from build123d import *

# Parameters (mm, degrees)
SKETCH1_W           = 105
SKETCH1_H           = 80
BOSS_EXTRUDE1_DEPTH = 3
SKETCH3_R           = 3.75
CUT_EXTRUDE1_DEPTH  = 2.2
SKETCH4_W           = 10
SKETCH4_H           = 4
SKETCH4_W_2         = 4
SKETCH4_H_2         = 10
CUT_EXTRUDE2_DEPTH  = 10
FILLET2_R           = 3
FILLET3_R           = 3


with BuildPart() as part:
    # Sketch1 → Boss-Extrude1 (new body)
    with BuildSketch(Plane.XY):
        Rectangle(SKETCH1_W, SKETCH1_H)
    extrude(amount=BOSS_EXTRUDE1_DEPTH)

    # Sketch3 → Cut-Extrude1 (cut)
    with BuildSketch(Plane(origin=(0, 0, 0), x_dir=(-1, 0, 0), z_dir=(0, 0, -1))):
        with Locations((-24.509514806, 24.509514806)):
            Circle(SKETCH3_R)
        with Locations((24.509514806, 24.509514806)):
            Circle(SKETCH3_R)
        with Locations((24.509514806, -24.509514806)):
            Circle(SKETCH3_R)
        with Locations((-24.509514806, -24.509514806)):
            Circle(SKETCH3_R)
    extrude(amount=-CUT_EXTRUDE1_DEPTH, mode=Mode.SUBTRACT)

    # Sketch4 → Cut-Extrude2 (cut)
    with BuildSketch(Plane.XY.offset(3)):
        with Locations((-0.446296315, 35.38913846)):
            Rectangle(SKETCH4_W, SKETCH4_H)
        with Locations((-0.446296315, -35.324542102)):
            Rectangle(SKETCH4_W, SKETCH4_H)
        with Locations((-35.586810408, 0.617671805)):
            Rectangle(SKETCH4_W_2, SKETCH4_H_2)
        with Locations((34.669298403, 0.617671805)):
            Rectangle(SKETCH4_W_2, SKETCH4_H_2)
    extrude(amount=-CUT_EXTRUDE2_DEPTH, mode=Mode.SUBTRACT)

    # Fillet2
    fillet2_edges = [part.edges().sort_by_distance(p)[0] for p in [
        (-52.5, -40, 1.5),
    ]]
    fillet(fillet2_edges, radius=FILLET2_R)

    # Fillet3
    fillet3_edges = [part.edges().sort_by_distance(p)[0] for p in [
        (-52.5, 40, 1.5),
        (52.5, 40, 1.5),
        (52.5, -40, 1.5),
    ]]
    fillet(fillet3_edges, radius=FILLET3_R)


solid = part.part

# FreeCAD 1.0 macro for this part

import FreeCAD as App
import Part
import Sketcher
from FreeCAD import Vector


def edges_at(feature, points):
    """Names of the edges that pass closest to the given points."""
    edges = feature.Shape.Edges
    near = lambda p: min(range(len(edges)), key=lambda i: edges[i].distToShape(Part.Vertex(*p))[0])
    return sorted({f"Edge{near(p) + 1}" for p in points})

doc = App.newDocument("Part")
body = doc.addObject("PartDesign::Body", "Body")

# Sketch on XY plane
sketch1 = doc.addObject("Sketcher::SketchObject", "Sketch")
body.addObject(sketch1)
sketch1.AttachmentSupport = (doc.XY_Plane, [""])
sketch1.MapMode = "FlatFace"
sketch1.addGeometry([
    Part.LineSegment(Vector(-52.5, 40, 0), Vector(-52.5, -40, 0)),
    Part.LineSegment(Vector(-52.5, -40, 0), Vector(52.5, -40, 0)),
    Part.LineSegment(Vector(52.5, -40, 0), Vector(52.5, 40, 0)),
    Part.LineSegment(Vector(52.5, 40, 0), Vector(-52.5, 40, 0)),
], False)
sketch1.addConstraint([
    Sketcher.Constraint("Coincident", 0, 2, 1, 1),
    Sketcher.Constraint("Coincident", 1, 2, 2, 1),
    Sketcher.Constraint("Coincident", 2, 2, 3, 1),
    Sketcher.Constraint("Coincident", 3, 2, 0, 1),
    Sketcher.Constraint("Vertical", 0),
    Sketcher.Constraint("Horizontal", 1),
    Sketcher.Constraint("Vertical", 2),
    Sketcher.Constraint("Horizontal", 3),
    Sketcher.Constraint("Symmetric", 0, 2, 2, 2, -1, 1),
    Sketcher.Constraint("DistanceX", 1, 1, 1, 2, 105.0),
    Sketcher.Constraint("DistanceY", 0, 2, 0, 1, 80.0),
])
pad1 = doc.addObject("PartDesign::Pad", "Pad")
body.addObject(pad1)
pad1.Profile = sketch1
pad1.Length = 3

# Sketch on XY plane
sketch2 = doc.addObject("Sketcher::SketchObject", "Sketch001")
body.addObject(sketch2)
sketch2.AttachmentSupport = (doc.XY_Plane, [""])
sketch2.MapMode = "FlatFace"
sketch2.addGeometry([
    Part.Circle(Vector(24.509515, 24.509515, 0), Vector(0, 0, 1), 3.75),
    Part.Circle(Vector(-24.509515, 24.509515, 0), Vector(0, 0, 1), 3.75),
    Part.Circle(Vector(-24.509515, -24.509515, 0), Vector(0, 0, 1), 3.75),
    Part.Circle(Vector(24.509515, -24.509515, 0), Vector(0, 0, 1), 3.75),
], False)
sketch2.addConstraint([
    Sketcher.Constraint("Equal", 0, 1),
    Sketcher.Constraint("Equal", 1, 2),
    Sketcher.Constraint("Equal", 2, 3),
    Sketcher.Constraint("Symmetric", 0, 3, 2, 3, -1, 1),
    Sketcher.Constraint("Symmetric", 1, 3, 3, 3, -1, 1),
    Sketcher.Constraint("Symmetric", 0, 3, 1, 3, -2),
    Sketcher.Constraint("Diameter", 0, 7.5),
    Sketcher.Constraint("DistanceX", 1, 3, 0, 3, 49.01903),
    Sketcher.Constraint("DistanceY", 2, 3, 1, 3, 49.01903),
])
pocket1 = doc.addObject("PartDesign::Pocket", "Pocket")
body.addObject(pocket1)
pocket1.Profile = sketch2
pocket1.Length = 2.2
pocket1.Reversed = True

# Sketch on XY plane
sketch3 = doc.addObject("Sketcher::SketchObject", "Sketch002")
body.addObject(sketch3)
sketch3.AttachmentSupport = (doc.XY_Plane, [""])
sketch3.MapMode = "FlatFace"
sketch3.AttachmentOffset = App.Placement(Vector(0, 0, 3), App.Rotation())
sketch3.addGeometry([
    Part.LineSegment(Vector(-5.446296, 37.389138, 0), Vector(-5.446296, 33.389138, 0)),  # 0
    Part.LineSegment(Vector(-5.446296, 33.389138, 0), Vector(4.553704, 33.389138, 0)),  # 1
    Part.LineSegment(Vector(4.553704, 33.389138, 0), Vector(4.553704, 37.389138, 0)),  # 2
    Part.LineSegment(Vector(4.553704, 37.389138, 0), Vector(-5.446296, 37.389138, 0)),  # 3
    Part.LineSegment(Vector(-5.446296, -33.324542, 0), Vector(-5.446296, -37.324542, 0)),  # 4
    Part.LineSegment(Vector(-5.446296, -37.324542, 0), Vector(4.553704, -37.324542, 0)),  # 5
    Part.LineSegment(Vector(4.553704, -37.324542, 0), Vector(4.553704, -33.324542, 0)),  # 6
    Part.LineSegment(Vector(4.553704, -33.324542, 0), Vector(-5.446296, -33.324542, 0)),  # 7
    Part.LineSegment(Vector(-37.58681, 5.617672, 0), Vector(-37.58681, -4.382328, 0)),  # 8
    Part.LineSegment(Vector(-37.58681, -4.382328, 0), Vector(-33.58681, -4.382328, 0)),  # 9
    Part.LineSegment(Vector(-33.58681, -4.382328, 0), Vector(-33.58681, 5.617672, 0)),  # 10
    Part.LineSegment(Vector(-33.58681, 5.617672, 0), Vector(-37.58681, 5.617672, 0)),  # 11
    Part.LineSegment(Vector(32.669298, 5.617672, 0), Vector(32.669298, -4.382328, 0)),  # 12
    Part.LineSegment(Vector(32.669298, -4.382328, 0), Vector(36.669298, -4.382328, 0)),  # 13
    Part.LineSegment(Vector(36.669298, -4.382328, 0), Vector(36.669298, 5.617672, 0)),  # 14
    Part.LineSegment(Vector(36.669298, 5.617672, 0), Vector(32.669298, 5.617672, 0)),  # 15
], False)
sketch3.addConstraint([
    Sketcher.Constraint("Coincident", 0, 2, 1, 1),
    Sketcher.Constraint("Coincident", 1, 2, 2, 1),
    Sketcher.Constraint("Coincident", 2, 2, 3, 1),
    Sketcher.Constraint("Coincident", 3, 2, 0, 1),
    Sketcher.Constraint("Coincident", 4, 2, 5, 1),
    Sketcher.Constraint("Coincident", 5, 2, 6, 1),
    Sketcher.Constraint("Coincident", 6, 2, 7, 1),
    Sketcher.Constraint("Coincident", 7, 2, 4, 1),
    Sketcher.Constraint("Coincident", 8, 2, 9, 1),
    Sketcher.Constraint("Coincident", 9, 2, 10, 1),
    Sketcher.Constraint("Coincident", 10, 2, 11, 1),
    Sketcher.Constraint("Coincident", 11, 2, 8, 1),
    Sketcher.Constraint("Coincident", 12, 2, 13, 1),
    Sketcher.Constraint("Coincident", 13, 2, 14, 1),
    Sketcher.Constraint("Coincident", 14, 2, 15, 1),
    Sketcher.Constraint("Coincident", 15, 2, 12, 1),
    Sketcher.Constraint("Vertical", 0),
    Sketcher.Constraint("Horizontal", 1),
    Sketcher.Constraint("Vertical", 2),
    Sketcher.Constraint("Horizontal", 3),
    Sketcher.Constraint("Vertical", 4),
    Sketcher.Constraint("Horizontal", 5),
    Sketcher.Constraint("Vertical", 6),
    Sketcher.Constraint("Horizontal", 7),
    Sketcher.Constraint("Vertical", 8),
    Sketcher.Constraint("Horizontal", 9),
    Sketcher.Constraint("Vertical", 10),
    Sketcher.Constraint("Horizontal", 11),
    Sketcher.Constraint("Vertical", 12),
    Sketcher.Constraint("Horizontal", 13),
    Sketcher.Constraint("Vertical", 14),
    Sketcher.Constraint("Horizontal", 15),
    Sketcher.Constraint("Horizontal", 9, 2, 12, 2),
    Sketcher.Constraint("Horizontal", 11, 2, 14, 2),
    Sketcher.Constraint("Vertical", 3, 2, 4, 2),
    Sketcher.Constraint("Vertical", 2, 2, 5, 2),
    Sketcher.Constraint("Equal", 11, 13),
    Sketcher.Constraint("Equal", 15, 0),
    Sketcher.Constraint("Equal", 2, 4),
    Sketcher.Constraint("Equal", 7, 8),
    Sketcher.Constraint("DistanceX", 1, 1, 1, 2, 10.0),
    Sketcher.Constraint("DistanceX", 9, 1, 9, 2, 4.0),
    Sketcher.Constraint("DistanceX", -1, 1, 12, 2, 32.669298),
    Sketcher.Constraint("DistanceY", -1, 1, 0, 2, 33.389138),
    Sketcher.Constraint("DistanceX", 8, 2, -1, 1, 37.58681),
    Sketcher.Constraint("DistanceY", 8, 2, -1, 1, 4.382328),
    Sketcher.Constraint("DistanceY", 4, 2, 0, 2, 70.713681),
    Sketcher.Constraint("DistanceX", 0, 2, -1, 1, 5.446296),
])
pocket2 = doc.addObject("PartDesign::Pocket", "Pocket001")
body.addObject(pocket2)
pocket2.Profile = sketch3
pocket2.Length = 10
doc.recompute()

fillet = doc.addObject("PartDesign::Fillet", "Fillet")
body.addObject(fillet)
fillet.Base = (pocket2, edges_at(pocket2, [(-52.5, -40, 1.5)]))
fillet.Radius = 3
doc.recompute()

fillet2 = doc.addObject("PartDesign::Fillet", "Fillet001")
body.addObject(fillet2)
fillet2.Base = (fillet, edges_at(fillet, [(-52.5, 40, 1.5), (52.5, 40, 1.5), (52.5, -40, 1.5)]))
fillet2.Radius = 3

doc.recompute()
